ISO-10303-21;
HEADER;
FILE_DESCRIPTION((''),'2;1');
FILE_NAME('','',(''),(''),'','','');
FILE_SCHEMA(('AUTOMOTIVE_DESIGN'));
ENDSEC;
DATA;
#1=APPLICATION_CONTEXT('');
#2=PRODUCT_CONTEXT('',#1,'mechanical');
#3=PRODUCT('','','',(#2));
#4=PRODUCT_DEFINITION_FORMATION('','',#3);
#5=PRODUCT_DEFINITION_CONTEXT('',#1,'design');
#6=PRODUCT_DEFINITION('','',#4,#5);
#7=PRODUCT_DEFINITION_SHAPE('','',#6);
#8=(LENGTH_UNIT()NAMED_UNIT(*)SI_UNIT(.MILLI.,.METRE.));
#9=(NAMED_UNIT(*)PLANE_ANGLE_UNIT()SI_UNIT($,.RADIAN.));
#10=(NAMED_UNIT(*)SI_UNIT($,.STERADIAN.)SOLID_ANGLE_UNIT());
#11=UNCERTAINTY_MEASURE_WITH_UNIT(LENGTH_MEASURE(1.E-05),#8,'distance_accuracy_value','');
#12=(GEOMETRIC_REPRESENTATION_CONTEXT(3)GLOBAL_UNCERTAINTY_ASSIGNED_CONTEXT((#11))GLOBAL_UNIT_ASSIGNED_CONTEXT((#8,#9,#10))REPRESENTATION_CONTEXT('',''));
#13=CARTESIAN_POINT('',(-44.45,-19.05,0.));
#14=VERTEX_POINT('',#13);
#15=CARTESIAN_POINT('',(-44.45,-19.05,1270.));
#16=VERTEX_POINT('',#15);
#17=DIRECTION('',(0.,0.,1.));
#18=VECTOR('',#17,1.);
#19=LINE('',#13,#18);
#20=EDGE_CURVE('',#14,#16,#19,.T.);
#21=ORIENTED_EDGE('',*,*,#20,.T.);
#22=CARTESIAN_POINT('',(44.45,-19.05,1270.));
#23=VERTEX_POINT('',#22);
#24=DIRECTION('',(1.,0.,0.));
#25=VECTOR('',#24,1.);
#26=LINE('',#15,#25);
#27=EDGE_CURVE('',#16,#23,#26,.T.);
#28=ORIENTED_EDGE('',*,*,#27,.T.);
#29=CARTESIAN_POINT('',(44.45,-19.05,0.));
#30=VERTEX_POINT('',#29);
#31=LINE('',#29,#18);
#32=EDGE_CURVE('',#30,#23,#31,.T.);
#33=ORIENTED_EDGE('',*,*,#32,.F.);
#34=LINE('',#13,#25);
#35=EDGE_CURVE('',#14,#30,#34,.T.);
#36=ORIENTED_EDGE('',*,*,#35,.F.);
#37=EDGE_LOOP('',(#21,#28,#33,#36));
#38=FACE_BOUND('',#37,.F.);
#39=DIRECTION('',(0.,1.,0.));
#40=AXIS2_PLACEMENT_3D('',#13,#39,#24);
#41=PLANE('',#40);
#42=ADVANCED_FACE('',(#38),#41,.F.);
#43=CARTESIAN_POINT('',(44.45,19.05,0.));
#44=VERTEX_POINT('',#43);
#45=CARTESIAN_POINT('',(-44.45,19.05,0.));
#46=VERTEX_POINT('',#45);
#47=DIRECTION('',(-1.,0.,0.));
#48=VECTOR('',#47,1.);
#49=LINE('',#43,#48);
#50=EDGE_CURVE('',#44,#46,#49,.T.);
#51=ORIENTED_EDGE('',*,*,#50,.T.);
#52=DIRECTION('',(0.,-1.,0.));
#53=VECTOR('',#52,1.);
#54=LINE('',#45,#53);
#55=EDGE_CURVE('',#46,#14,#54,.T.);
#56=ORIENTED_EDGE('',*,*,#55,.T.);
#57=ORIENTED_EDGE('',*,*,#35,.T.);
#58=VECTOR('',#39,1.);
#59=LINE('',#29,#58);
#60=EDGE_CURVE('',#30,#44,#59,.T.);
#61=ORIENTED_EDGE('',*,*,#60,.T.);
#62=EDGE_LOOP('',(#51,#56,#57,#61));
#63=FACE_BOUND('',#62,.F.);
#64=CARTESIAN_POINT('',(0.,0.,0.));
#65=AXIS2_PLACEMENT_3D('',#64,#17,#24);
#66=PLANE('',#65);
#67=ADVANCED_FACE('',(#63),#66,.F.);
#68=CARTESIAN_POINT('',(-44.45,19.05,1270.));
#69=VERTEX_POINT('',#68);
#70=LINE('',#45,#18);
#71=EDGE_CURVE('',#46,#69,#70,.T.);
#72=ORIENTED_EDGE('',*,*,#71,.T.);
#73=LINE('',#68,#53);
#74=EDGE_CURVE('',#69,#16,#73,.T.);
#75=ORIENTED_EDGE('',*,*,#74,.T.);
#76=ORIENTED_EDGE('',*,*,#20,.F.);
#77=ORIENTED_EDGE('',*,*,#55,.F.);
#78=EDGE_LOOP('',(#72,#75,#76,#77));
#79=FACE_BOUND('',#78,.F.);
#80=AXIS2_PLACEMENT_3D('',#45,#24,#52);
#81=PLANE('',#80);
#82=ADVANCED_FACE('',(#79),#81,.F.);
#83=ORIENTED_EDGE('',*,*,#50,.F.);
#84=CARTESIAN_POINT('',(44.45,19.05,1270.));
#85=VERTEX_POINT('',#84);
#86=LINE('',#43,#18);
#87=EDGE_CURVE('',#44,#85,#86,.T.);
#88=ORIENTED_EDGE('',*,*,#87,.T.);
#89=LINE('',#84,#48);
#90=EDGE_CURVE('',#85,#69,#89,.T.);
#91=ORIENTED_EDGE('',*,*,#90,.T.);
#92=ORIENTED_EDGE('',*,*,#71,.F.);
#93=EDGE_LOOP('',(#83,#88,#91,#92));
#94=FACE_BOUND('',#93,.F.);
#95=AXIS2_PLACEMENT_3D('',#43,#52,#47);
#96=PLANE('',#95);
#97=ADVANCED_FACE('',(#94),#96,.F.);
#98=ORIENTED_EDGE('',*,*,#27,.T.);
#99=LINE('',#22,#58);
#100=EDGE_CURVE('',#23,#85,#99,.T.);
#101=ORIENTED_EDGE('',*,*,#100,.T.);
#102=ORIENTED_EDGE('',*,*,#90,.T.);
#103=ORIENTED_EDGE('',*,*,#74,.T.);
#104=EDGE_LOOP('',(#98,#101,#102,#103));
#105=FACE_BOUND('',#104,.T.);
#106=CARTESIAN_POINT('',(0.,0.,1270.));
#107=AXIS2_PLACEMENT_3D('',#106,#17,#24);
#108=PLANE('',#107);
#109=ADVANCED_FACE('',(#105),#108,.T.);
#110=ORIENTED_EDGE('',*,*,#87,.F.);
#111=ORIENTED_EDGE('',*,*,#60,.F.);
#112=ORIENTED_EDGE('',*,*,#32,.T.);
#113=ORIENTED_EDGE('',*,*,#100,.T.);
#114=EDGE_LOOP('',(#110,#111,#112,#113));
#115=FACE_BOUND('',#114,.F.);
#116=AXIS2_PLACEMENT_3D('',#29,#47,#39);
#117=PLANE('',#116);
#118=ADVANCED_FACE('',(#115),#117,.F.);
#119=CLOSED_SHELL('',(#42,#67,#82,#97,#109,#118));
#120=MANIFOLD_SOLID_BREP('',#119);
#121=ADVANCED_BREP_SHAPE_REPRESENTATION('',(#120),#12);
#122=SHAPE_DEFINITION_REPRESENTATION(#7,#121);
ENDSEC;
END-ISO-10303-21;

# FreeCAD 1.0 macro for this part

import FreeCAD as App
import Part
import Sketcher

V = App.Vector
Q = App.Units.Quantity


def add_polygon(sketch, points):
    """Adds a closed chain of lines whose ends are joined by coincident constraints."""
    first, n = sketch.GeometryCount, len(points)
    for a, b in zip(points, points[1:] + points[:1]):
        sketch.addGeometry(Part.LineSegment(App.Vector(*a, 0), App.Vector(*b, 0)), False)
    for i in range(n):
        sketch.addConstraint(Sketcher.Constraint("Coincident", first + i, 2, first + (i + 1) % n, 1))

doc = App.newDocument("Part")
body = doc.addObject("PartDesign::Body", "Body")

sketch1 = body.newObject("Sketcher::SketchObject", "Sketch")
sketch1.AttachmentSupport = (doc.getObject("XY_Plane"), [""])
sketch1.MapMode = "FlatFace"
add_polygon(sketch1, [(-44, 19), (-44, -19), (44, -19), (44, 19)])
sketch1.addConstraint(Sketcher.Constraint("Vertical", 0))
sketch1.addConstraint(Sketcher.Constraint("Horizontal", 1))
sketch1.addConstraint(Sketcher.Constraint("Vertical", 2))
sketch1.addConstraint(Sketcher.Constraint("Horizontal", 3))
sketch1.addConstraint(Sketcher.Constraint("Symmetric", 0, 2, 2, 2, -1, 1))
sketch1.addConstraint(Sketcher.Constraint("DistanceX", 1, 1, 1, 2, Q("3.5 in")))
sketch1.addConstraint(Sketcher.Constraint("DistanceY", 0, 2, 0, 1, Q("1.5 in")))
pad1 = body.newObject("PartDesign::Pad", "Pad")
pad1.Profile = sketch1
pad1.Length = Q("50 in")

doc.recompute()
